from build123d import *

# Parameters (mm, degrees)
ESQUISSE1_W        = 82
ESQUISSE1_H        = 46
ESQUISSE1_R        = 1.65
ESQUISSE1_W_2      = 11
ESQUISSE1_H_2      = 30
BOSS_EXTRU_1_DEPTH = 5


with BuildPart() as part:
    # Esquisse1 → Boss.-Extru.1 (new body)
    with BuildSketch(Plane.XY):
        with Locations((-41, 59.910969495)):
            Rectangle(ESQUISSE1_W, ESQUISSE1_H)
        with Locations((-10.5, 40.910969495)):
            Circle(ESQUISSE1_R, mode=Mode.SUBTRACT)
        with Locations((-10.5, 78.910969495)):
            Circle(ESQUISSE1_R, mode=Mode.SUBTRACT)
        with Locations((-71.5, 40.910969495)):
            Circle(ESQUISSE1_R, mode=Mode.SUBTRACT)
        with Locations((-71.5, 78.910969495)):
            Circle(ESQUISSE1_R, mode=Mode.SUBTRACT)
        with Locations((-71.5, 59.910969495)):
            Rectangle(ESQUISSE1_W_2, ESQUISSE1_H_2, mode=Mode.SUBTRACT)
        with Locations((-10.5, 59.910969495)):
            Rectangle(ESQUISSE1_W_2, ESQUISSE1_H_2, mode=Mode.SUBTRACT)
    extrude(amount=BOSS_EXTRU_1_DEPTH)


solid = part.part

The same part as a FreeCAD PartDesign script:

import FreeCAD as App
import Part
import Sketcher


def add_polygon(sketch, points):
    """Adds a closed chain of lines whose ends are joined by coincident constraints."""
    first, n = sketch.GeometryCount, len(points)
    for a, b in zip(points, points[1:] + points[:1]):
        sketch.addGeometry(Part.LineSegment(App.Vector(*a, 0), App.Vector(*b, 0)), False)
    for i in range(n):
        sketch.addConstraint(Sketcher.Constraint("Coincident", first + i, 2, first + (i + 1) % n, 1))

doc = App.newDocument("Part")
body = doc.addObject("PartDesign::Body", "Body")

sketch1 = body.newObject("Sketcher::SketchObject", "Sketch")
sketch1.AttachmentSupport = (doc.getObject("XY_Plane"), [""])
sketch1.MapMode = "FlatFace"
add_polygon(sketch1, [(-82, 82.9), (-82, 36.9), (0, 36.9), (0, 82.9)])
sketch1.addGeometry(Part.Circle(App.Vector(-71.5, 40.9, 0), App.Vector(0, 0, 1), 1.6), False)
sketch1.addGeometry(Part.Circle(App.Vector(-10.5, 40.9, 0), App.Vector(0, 0, 1), 1.6), False)
add_polygon(sketch1, [(-66, 44.9), (-77, 44.9), (-77, 74.9), (-66, 74.9)])
sketch1.addGeometry(Part.Circle(App.Vector(-71.5, 78.9, 0), App.Vector(0, 0, 1), 1.6), False)
add_polygon(sketch1, [(-5, 44.9), (-16, 44.9), (-16, 74.9), (-5, 74.9)])
sketch1.addGeometry(Part.Circle(App.Vector(-10.5, 78.9, 0), App.Vector(0, 0, 1), 1.6), False)
sketch1.addConstraint([
    Sketcher.Constraint("Vertical", 0),
    Sketcher.Constraint("Horizontal", 1),
    Sketcher.Constraint("Vertical", 2),
    Sketcher.Constraint("Horizontal", 3),
    Sketcher.Constraint("Horizontal", 6),
    Sketcher.Constraint("Vertical", 7),
    Sketcher.Constraint("Horizontal", 8),
    Sketcher.Constraint("Vertical", 9),
    Sketcher.Constraint("Horizontal", 11),
    Sketcher.Constraint("Vertical", 12),
    Sketcher.Constraint("Horizontal", 13),
    Sketcher.Constraint("Vertical", 14),
    Sketcher.Constraint("Equal", 4, 5),
    Sketcher.Constraint("Equal", 5, 10),
    Sketcher.Constraint("Equal", 10, 15),
    Sketcher.Constraint("PointOnObject", 1, 2, -2),
    Sketcher.Constraint("Horizontal", 4, 3, 5, 3),
    Sketcher.Constraint("Horizontal", 10, 3, 15, 3),
    Sketcher.Constraint("Horizontal", 9, 2, 11, 2),
    Sketcher.Constraint("Horizontal", 8, 2, 12, 2),
    Sketcher.Constraint("Vertical", 4, 3, 10, 3),
    Sketcher.Constraint("Vertical", 5, 3, 15, 3),
    Sketcher.Constraint("Equal", 8, 11),
    Sketcher.Constraint("Diameter", 4, 3.3),
    Sketcher.Constraint("DistanceX", 1, 1, 1, 2, 82.0),
    Sketcher.Constraint("DistanceX", 6, 2, 6, 1, 11.0),
    Sketcher.Constraint("DistanceY", 0, 2, 0, 1, 46.0),
    Sketcher.Constraint("DistanceY", 7, 1, 7, 2, 30.0),
    Sketcher.Constraint("DistanceX", 6, 2, -1, 1, 77.0),
    Sketcher.Constraint("DistanceX", 11, 2, -1, 1, 16.0),
    Sketcher.Constraint("DistanceX", 4, 3, 5, 3, 61.0),
    Sketcher.Constraint("DistanceY", 4, 3, 10, 3, 38.0),
    Sketcher.Constraint("DistanceY", 0, 2, 4, 3, 4.0),
    Sketcher.Constraint("DistanceY", 4, 3, 6, 2, 4.0),
    Sketcher.Constraint("DistanceX", 4, 3, -1, 1, 71.5),
    Sketcher.Constraint("DistanceY", -1, 1, 4, 3, 40.910969),
])
pad1 = body.newObject("PartDesign::Pad", "Pad")
pad1.Profile = sketch1
pad1.Length = 5

doc.recompute()
